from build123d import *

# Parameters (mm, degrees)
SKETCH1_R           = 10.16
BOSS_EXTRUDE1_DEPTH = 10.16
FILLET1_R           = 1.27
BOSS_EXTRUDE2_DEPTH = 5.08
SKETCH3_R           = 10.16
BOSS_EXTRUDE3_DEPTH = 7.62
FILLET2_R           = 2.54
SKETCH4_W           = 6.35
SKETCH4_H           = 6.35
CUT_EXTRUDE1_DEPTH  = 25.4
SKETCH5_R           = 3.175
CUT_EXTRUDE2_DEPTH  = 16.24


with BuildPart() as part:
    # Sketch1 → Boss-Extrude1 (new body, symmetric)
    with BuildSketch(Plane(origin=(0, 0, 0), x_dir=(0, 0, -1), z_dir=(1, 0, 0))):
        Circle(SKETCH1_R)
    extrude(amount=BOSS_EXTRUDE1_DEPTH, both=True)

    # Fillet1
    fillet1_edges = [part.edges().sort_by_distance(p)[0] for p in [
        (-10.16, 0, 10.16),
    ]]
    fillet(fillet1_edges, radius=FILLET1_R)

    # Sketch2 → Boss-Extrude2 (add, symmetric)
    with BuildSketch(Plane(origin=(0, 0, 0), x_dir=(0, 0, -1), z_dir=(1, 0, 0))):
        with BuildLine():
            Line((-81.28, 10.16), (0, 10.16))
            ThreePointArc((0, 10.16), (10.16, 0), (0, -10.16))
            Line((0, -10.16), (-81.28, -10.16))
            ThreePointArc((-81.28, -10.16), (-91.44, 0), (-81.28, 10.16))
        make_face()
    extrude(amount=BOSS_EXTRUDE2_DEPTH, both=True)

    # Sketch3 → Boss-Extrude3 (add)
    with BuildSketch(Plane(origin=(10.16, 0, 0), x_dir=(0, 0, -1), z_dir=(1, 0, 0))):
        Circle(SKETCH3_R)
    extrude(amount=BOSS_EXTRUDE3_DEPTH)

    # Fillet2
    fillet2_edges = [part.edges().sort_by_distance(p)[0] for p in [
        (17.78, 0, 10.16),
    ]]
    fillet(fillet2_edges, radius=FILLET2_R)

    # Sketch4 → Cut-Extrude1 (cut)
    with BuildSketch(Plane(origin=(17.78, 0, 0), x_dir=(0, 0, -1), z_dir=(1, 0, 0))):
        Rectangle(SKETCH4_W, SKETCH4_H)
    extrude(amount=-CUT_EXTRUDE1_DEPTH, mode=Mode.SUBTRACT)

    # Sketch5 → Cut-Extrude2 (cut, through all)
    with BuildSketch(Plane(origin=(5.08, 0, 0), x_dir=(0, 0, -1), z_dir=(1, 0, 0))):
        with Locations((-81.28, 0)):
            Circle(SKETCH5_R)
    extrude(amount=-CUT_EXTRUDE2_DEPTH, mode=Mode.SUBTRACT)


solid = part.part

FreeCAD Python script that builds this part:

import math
import FreeCAD as App
import Part
import Sketcher
from FreeCAD import Vector
Q = App.Units.Quantity


def edges_at(feature, points):
    """Names of the edges that pass closest to the given points."""
    edges = feature.Shape.Edges
    near = lambda p: min(range(len(edges)), key=lambda i: edges[i].distToShape(Part.Vertex(*p))[0])
    return sorted({f"Edge{near(p) + 1}" for p in points})

doc = App.newDocument("Part")
body = doc.addObject("PartDesign::Body", "Body")

sketch1 = body.newObject("Sketcher::SketchObject", "Sketch")
sketch1.AttachmentSupport = (doc.getObject("YZ_Plane"), [""])
sketch1.MapMode = "FlatFace"
sketch1.addGeometry(Part.Circle(Vector(0, 0, 0), Vector(0, 0, 1), 10), False)
sketch1.addConstraint([
    Sketcher.Constraint("Coincident", 0, 3, -1, 1),
    Sketcher.Constraint("Diameter", 0, Q("0.8 in")),
])
pad1 = body.newObject("PartDesign::Pad", "Pad")
pad1.Profile = sketch1
pad1.Length = Q("0.8 in")
pad1.Midplane = True
doc.recompute()

fillet = body.newObject("PartDesign::Fillet", "Fillet")
fillet.Base = (pad1, edges_at(pad1, [(-10.16, 0, 10.16)]))
fillet.Radius = Q("0.05 in")

sketch2 = body.newObject("Sketcher::SketchObject", "Sketch001")
sketch2.AttachmentSupport = (doc.getObject("YZ_Plane"), [""])
sketch2.MapMode = "FlatFace"
sketch2.addGeometry([
    Part.LineSegment(Vector(10, 0, 0), Vector(10, 81, 0)),
    Part.ArcOfCircle(Part.Circle(Vector(0, 81, 0), Vector(0, 0, 1), 10), math.radians(0), math.radians(180)),
    Part.LineSegment(Vector(-10, 81, 0), Vector(-10, 0, 0)),
    Part.ArcOfCircle(Part.Circle(Vector(0, 0, 0), Vector(0, 0, 1), 10), math.radians(180), math.radians(360)),
], False)
sketch2.addConstraint([
    Sketcher.Constraint("Tangent", 0, 2, 1, 1),
    Sketcher.Constraint("Tangent", 1, 2, 2, 1),
    Sketcher.Constraint("Tangent", 2, 2, 3, 1),
    Sketcher.Constraint("Tangent", 3, 2, 0, 1),
    Sketcher.Constraint("Vertical", 0),
    Sketcher.Constraint("Vertical", 2),
    Sketcher.Constraint("Coincident", 3, 3, -1, 1),
    Sketcher.Constraint("Radius", 1, Q("0.4 in")),
    Sketcher.Constraint("DistanceY", 0, 1, 0, 2, Q("3.2 in")),
])
pad2 = body.newObject("PartDesign::Pad", "Pad001")
pad2.Profile = sketch2
pad2.Length = Q("0.4 in")
pad2.Midplane = True

sketch3 = body.newObject("Sketcher::SketchObject", "Sketch002")
sketch3.AttachmentSupport = (doc.getObject("YZ_Plane"), [""])
sketch3.MapMode = "FlatFace"
sketch3.AttachmentOffset = App.Placement(Vector(0, 0, 0.4 * 25.4), App.Rotation())
sketch3.addGeometry(Part.Circle(Vector(0, 0, 0), Vector(0, 0, 1), 10), False)
sketch3.addConstraint([
    Sketcher.Constraint("Coincident", 0, 3, -1, 1),
    Sketcher.Constraint("Diameter", 0, Q("0.8 in")),
])
pad3 = body.newObject("PartDesign::Pad", "Pad002")
pad3.Profile = sketch3
pad3.Length = Q("0.3 in")
doc.recompute()

fillet2 = body.newObject("PartDesign::Fillet", "Fillet001")
fillet2.Base = (pad3, edges_at(pad3, [(17.78, 0, 10.16)]))
fillet2.Radius = Q("0.1 in")

sketch4 = body.newObject("Sketcher::SketchObject", "Sketch003")
sketch4.AttachmentSupport = (doc.getObject("YZ_Plane"), [""])
sketch4.MapMode = "FlatFace"
sketch4.AttachmentOffset = App.Placement(Vector(0, 0, 0.7 * 25.4), App.Rotation())
sketch4.addGeometry([
    Part.LineSegment(Vector(3, 3, 0), Vector(-3, 3, 0)),
    Part.LineSegment(Vector(-3, 3, 0), Vector(-3, -3, 0)),
    Part.LineSegment(Vector(-3, -3, 0), Vector(3, -3, 0)),
    Part.LineSegment(Vector(3, -3, 0), Vector(3, 3, 0)),
], False)
sketch4.addConstraint([
    Sketcher.Constraint("Coincident", 0, 2, 1, 1),
    Sketcher.Constraint("Coincident", 1, 2, 2, 1),
    Sketcher.Constraint("Coincident", 2, 2, 3, 1),
    Sketcher.Constraint("Coincident", 3, 2, 0, 1),
    Sketcher.Constraint("Horizontal", 0),
    Sketcher.Constraint("Vertical", 1),
    Sketcher.Constraint("Horizontal", 2),
    Sketcher.Constraint("Vertical", 3),
    Sketcher.Constraint("Symmetric", 0, 2, 2, 2, -1, 1),
    Sketcher.Constraint("Equal", 2, 1),
    Sketcher.Constraint("DistanceX", 0, 2, 0, 1, Q("0.25 in")),
])
pocket1 = body.newObject("PartDesign::Pocket", "Pocket")
pocket1.Profile = sketch4
pocket1.Length = Q("1 in")

sketch5 = body.newObject("Sketcher::SketchObject", "Sketch004")
sketch5.AttachmentSupport = (doc.getObject("YZ_Plane"), [""])
sketch5.MapMode = "FlatFace"
sketch5.AttachmentOffset = App.Placement(Vector(0, 0, 0.2 * 25.4), App.Rotation())
sketch5.addGeometry(Part.Circle(Vector(0, 81.3, 0), Vector(0, 0, 1), 3.2), False)
sketch5.addConstraint([
    Sketcher.Constraint("PointOnObject", 0, 3, -2),
    Sketcher.Constraint("Diameter", 0, Q("0.25 in")),
    Sketcher.Constraint("DistanceY", -1, 1, 0, 3, Q("3.2 in")),
])
pocket2 = body.newObject("PartDesign::Pocket", "Pocket001")
pocket2.Profile = sketch5
pocket2.Type = "ThroughAll"

doc.recompute()
